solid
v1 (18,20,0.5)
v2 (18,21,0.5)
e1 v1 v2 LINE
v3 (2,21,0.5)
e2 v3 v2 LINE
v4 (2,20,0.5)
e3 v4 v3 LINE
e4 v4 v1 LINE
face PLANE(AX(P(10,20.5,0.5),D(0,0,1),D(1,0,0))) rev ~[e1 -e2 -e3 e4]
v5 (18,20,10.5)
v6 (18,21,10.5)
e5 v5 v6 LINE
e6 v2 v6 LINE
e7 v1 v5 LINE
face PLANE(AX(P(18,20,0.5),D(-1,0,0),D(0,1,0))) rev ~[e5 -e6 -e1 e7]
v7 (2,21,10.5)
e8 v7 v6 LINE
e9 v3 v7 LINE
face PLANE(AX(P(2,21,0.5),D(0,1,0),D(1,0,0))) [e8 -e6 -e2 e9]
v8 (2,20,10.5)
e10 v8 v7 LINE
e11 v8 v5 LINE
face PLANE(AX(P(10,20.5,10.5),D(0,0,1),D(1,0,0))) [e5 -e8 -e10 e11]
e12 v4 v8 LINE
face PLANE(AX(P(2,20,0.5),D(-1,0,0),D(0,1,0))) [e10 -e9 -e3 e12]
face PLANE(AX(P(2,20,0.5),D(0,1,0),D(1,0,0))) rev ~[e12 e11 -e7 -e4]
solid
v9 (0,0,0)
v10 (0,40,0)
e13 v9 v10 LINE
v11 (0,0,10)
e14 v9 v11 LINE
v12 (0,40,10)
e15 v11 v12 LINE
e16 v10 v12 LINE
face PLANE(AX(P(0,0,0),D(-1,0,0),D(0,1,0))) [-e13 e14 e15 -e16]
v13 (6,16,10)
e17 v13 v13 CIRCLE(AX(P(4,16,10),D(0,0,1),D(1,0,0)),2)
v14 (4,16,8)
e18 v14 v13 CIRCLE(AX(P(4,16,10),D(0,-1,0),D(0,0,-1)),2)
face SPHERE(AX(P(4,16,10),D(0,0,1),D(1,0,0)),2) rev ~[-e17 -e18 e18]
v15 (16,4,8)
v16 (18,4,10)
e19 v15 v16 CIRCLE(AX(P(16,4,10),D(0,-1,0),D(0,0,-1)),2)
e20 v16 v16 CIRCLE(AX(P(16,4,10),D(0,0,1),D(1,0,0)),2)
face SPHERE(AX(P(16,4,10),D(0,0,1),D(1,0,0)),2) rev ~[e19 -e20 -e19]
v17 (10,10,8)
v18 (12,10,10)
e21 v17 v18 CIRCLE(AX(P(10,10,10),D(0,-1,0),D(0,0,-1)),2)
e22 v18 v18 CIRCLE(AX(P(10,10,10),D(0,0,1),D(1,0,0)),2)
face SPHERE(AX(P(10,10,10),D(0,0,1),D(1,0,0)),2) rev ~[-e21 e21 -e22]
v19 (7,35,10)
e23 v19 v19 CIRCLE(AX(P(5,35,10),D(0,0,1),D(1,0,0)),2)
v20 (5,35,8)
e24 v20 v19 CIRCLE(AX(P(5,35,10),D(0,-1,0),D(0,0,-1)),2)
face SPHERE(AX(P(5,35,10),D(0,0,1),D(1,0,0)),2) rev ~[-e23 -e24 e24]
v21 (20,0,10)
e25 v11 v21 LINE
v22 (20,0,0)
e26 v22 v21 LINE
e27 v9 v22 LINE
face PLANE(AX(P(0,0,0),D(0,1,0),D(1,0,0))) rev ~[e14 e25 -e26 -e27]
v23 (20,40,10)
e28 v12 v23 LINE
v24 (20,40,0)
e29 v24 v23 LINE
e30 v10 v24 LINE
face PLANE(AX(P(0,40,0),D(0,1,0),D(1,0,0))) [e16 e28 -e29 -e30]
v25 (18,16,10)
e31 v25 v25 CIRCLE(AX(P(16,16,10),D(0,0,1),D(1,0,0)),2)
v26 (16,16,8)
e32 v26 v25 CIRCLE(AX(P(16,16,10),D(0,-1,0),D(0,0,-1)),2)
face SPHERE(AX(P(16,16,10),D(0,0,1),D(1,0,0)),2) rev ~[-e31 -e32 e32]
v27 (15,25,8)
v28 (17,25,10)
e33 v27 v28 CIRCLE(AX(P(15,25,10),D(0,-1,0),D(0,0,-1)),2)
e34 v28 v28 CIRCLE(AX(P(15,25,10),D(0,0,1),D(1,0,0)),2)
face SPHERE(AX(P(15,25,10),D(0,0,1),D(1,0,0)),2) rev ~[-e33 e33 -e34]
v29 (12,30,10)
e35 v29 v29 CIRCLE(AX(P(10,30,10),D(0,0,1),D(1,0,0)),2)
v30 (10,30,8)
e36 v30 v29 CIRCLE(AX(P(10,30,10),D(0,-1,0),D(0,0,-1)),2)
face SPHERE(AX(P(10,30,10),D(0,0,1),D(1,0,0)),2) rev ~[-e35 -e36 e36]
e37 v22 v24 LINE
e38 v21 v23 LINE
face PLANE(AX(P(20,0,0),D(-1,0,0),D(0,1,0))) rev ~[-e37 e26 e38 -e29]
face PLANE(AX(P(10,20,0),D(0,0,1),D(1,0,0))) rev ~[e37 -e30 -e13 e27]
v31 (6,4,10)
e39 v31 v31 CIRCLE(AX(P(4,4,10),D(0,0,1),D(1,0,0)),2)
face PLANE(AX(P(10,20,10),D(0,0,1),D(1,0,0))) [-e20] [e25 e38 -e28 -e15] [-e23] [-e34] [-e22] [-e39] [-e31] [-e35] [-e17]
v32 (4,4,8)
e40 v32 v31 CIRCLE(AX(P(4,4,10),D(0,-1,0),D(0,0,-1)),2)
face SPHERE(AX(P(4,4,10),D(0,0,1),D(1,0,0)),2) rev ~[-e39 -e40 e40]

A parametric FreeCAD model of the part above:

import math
import FreeCAD as App
import Part
import Sketcher
from FreeCAD import Vector
Q = App.Units.Quantity

doc = App.newDocument("Part")
body = doc.addObject("PartDesign::Body", "Body")

# Sketch on XY plane
sketch1 = body.newObject("Sketcher::SketchObject", "Sketch")
sketch1.AttachmentSupport = (doc.getObject("XY_Plane"), [""])
sketch1.MapMode = "FlatFace"
sketch1.AttachmentOffset = App.Placement(Vector(0, 0, 0.5), App.Rotation())
sketch1.addGeometry([
    Part.LineSegment(Vector(2, 21, 0), Vector(2, 20, 0)),
    Part.LineSegment(Vector(2, 20, 0), Vector(18, 20, 0)),
    Part.LineSegment(Vector(18, 20, 0), Vector(18, 21, 0)),
    Part.LineSegment(Vector(18, 21, 0), Vector(2, 21, 0)),
], False)
sketch1.addConstraint([
    Sketcher.Constraint("Coincident", 0, 2, 1, 1),
    Sketcher.Constraint("Coincident", 1, 2, 2, 1),
    Sketcher.Constraint("Coincident", 2, 2, 3, 1),
    Sketcher.Constraint("Coincident", 3, 2, 0, 1),
    Sketcher.Constraint("Vertical", 0),
    Sketcher.Constraint("Horizontal", 1),
    Sketcher.Constraint("Vertical", 2),
    Sketcher.Constraint("Horizontal", 3),
    Sketcher.Constraint("DistanceX", 1, 1, 1, 2, Q("16 mm")),
    Sketcher.Constraint("DistanceY", 0, 2, 0, 1, Q("1 mm")),
    Sketcher.Constraint("DistanceX", -1, 1, 0, 2, Q("2 mm")),
    Sketcher.Constraint("DistanceY", -1, 1, 0, 2, Q("20 mm")),
])
pad1 = body.newObject("PartDesign::Pad", "Pad")
pad1.Profile = sketch1
pad1.Length = 10
body2 = doc.addObject("PartDesign::Body", "Body001")

# Sketch on XZ plane
sketch2 = body2.newObject("Sketcher::SketchObject", "Sketch001")
sketch2.AttachmentSupport = (doc.getObject("XZ_Plane001"), [""])
sketch2.MapMode = "FlatFace"
sketch2.AttachmentOffset = App.Placement(Vector(0, 0, -25), App.Rotation())
sketch2.addGeometry([
    Part.ArcOfCircle(Part.Circle(Vector(15, 10, 0), Vector(0, 0, 1), 2), math.radians(-90), math.radians(90)),
    Part.LineSegment(Vector(15, 12, 0), Vector(15, 8, 0)),
], False)
sketch2.addGeometry(Part.LineSegment(Vector(15, 8, 0), Vector(15, 12, 0)), True)  # axis
sketch2.addConstraint([
    Sketcher.Constraint("Coincident", 0, 1, 1, 2),
    Sketcher.Constraint("Coincident", 1, 1, 0, 2),
    Sketcher.Constraint("Vertical", 1),
    Sketcher.Constraint("Vertical", 2),
    Sketcher.Constraint("Coincident", 2, 1, 0, 1),
    Sketcher.Constraint("Equal", 1, 2),
    Sketcher.Constraint("Radius", 0, Q("2 mm")),
    Sketcher.Constraint("DistanceX", -1, 1, 0, 3, Q("15 mm")),
    Sketcher.Constraint("DistanceY", -1, 1, 0, 3, Q("10 mm")),
    Sketcher.Constraint("DistanceX", -1, 1, 0, 1, Q("15 mm")),
])
revolution = body2.newObject("PartDesign::Revolution", "Revolution")
revolution.Profile = sketch2
revolution.ReferenceAxis = (sketch2, ["Axis0"])
revolution.Angle = 360
body3 = doc.addObject("PartDesign::Body", "Body002")

# Sketch on XZ plane
sketch3 = body3.newObject("Sketcher::SketchObject", "Sketch002")
sketch3.AttachmentSupport = (doc.getObject("XZ_Plane002"), [""])
sketch3.MapMode = "FlatFace"
sketch3.AttachmentOffset = App.Placement(Vector(0, 0, -30), App.Rotation())
sketch3.addGeometry([
    Part.ArcOfCircle(Part.Circle(Vector(10, 10, 0), Vector(0, 0, 1), 2), math.radians(-90), math.radians(90)),
    Part.LineSegment(Vector(10, 12, 0), Vector(10, 8, 0)),
], False)
sketch3.addGeometry(Part.LineSegment(Vector(10, 8, 0), Vector(10, 12, 0)), True)  # axis
sketch3.addConstraint([
    Sketcher.Constraint("Coincident", 0, 1, 1, 2),
    Sketcher.Constraint("Coincident", 1, 1, 0, 2),
    Sketcher.Constraint("Vertical", 1),
    Sketcher.Constraint("Vertical", 2),
    Sketcher.Constraint("Coincident", 2, 1, 0, 1),
    Sketcher.Constraint("Equal", 1, 2),
    Sketcher.Constraint("Radius", 0, Q("2 mm")),
    Sketcher.Constraint("DistanceX", -1, 1, 0, 3, Q("10 mm")),
    Sketcher.Constraint("DistanceY", -1, 1, 0, 3, Q("10 mm")),
    Sketcher.Constraint("DistanceX", -1, 1, 0, 1, Q("10 mm")),
])
revolution2 = body3.newObject("PartDesign::Revolution", "Revolution001")
revolution2.Profile = sketch3
revolution2.ReferenceAxis = (sketch3, ["Axis0"])
revolution2.Angle = 360
body4 = doc.addObject("PartDesign::Body", "Body003")
body4.AllowCompound = True

# Sketch on XZ plane
sketch4 = body4.newObject("Sketcher::SketchObject", "Sketch003")
sketch4.AttachmentSupport = (doc.getObject("XZ_Plane003"), [""])
sketch4.MapMode = "FlatFace"
sketch4.AttachmentOffset = App.Placement(Vector(0, 0, -35), App.Rotation())
sketch4.addGeometry([
    Part.ArcOfCircle(Part.Circle(Vector(5, 10, 0), Vector(0, 0, 1), 2), math.radians(-90), math.radians(90)),
    Part.LineSegment(Vector(5, 12, 0), Vector(5, 8, 0)),
], False)
sketch4.addGeometry(Part.LineSegment(Vector(5, 8, 0), Vector(5, 12, 0)), True)  # axis
sketch4.addConstraint([
    Sketcher.Constraint("Coincident", 0, 1, 1, 2),
    Sketcher.Constraint("Coincident", 1, 1, 0, 2),
    Sketcher.Constraint("Vertical", 1),
    Sketcher.Constraint("Vertical", 2),
    Sketcher.Constraint("Coincident", 2, 1, 0, 1),
    Sketcher.Constraint("Equal", 1, 2),
    Sketcher.Constraint("Radius", 0, Q("2 mm")),
    Sketcher.Constraint("DistanceX", -1, 1, 0, 3, Q("5 mm")),
    Sketcher.Constraint("DistanceY", -1, 1, 0, 3, Q("10 mm")),
    Sketcher.Constraint("DistanceX", -1, 1, 0, 1, Q("5 mm")),
])
revolution3 = body4.newObject("PartDesign::Revolution", "Revolution002")
revolution3.Profile = sketch4
revolution3.ReferenceAxis = (sketch4, ["Axis0"])
revolution3.Angle = 360
doc.recompute()

boolean = body4.newObject("PartDesign::Boolean", "Boolean")
boolean.Type = "Fuse"
boolean.addObjects([body2])
doc.recompute()

boolean2 = body4.newObject("PartDesign::Boolean", "Boolean001")
boolean2.Type = "Fuse"
boolean2.addObjects([body3])
body5 = doc.addObject("PartDesign::Body", "Body004")

# Sketch on XZ plane
sketch5 = body5.newObject("Sketcher::SketchObject", "Sketch004")
sketch5.AttachmentSupport = (doc.getObject("XZ_Plane004"), [""])
sketch5.MapMode = "FlatFace"
sketch5.AttachmentOffset = App.Placement(Vector(0, 0, -4), App.Rotation())
sketch5.addGeometry([
    Part.ArcOfCircle(Part.Circle(Vector(16, 10, 0), Vector(0, 0, 1), 2), math.radians(-90), math.radians(90)),
    Part.LineSegment(Vector(16, 12, 0), Vector(16, 8, 0)),
], False)
sketch5.addGeometry(Part.LineSegment(Vector(16, 8, 0), Vector(16, 12, 0)), True)  # axis
sketch5.addConstraint([
    Sketcher.Constraint("Coincident", 0, 1, 1, 2),
    Sketcher.Constraint("Coincident", 1, 1, 0, 2),
    Sketcher.Constraint("Vertical", 1),
    Sketcher.Constraint("Vertical", 2),
    Sketcher.Constraint("Coincident", 2, 1, 0, 1),
    Sketcher.Constraint("Equal", 1, 2),
    Sketcher.Constraint("Radius", 0, Q("2 mm")),
    Sketcher.Constraint("DistanceX", -1, 1, 0, 3, Q("16 mm")),
    Sketcher.Constraint("DistanceY", -1, 1, 0, 3, Q("10 mm")),
    Sketcher.Constraint("DistanceX", -1, 1, 0, 1, Q("16 mm")),
])
revolution4 = body5.newObject("PartDesign::Revolution", "Revolution003")
revolution4.Profile = sketch5
revolution4.ReferenceAxis = (sketch5, ["Axis0"])
revolution4.Angle = 360
body6 = doc.addObject("PartDesign::Body", "Body005")

# Sketch on XZ plane
sketch6 = body6.newObject("Sketcher::SketchObject", "Sketch005")
sketch6.AttachmentSupport = (doc.getObject("XZ_Plane005"), [""])
sketch6.MapMode = "FlatFace"
sketch6.AttachmentOffset = App.Placement(Vector(0, 0, -16), App.Rotation())
sketch6.addGeometry([
    Part.ArcOfCircle(Part.Circle(Vector(4, 10, 0), Vector(0, 0, 1), 2), math.radians(-90), math.radians(90)),
    Part.LineSegment(Vector(4, 12, 0), Vector(4, 8, 0)),
], False)
sketch6.addGeometry(Part.LineSegment(Vector(4, 8, 0), Vector(4, 12, 0)), True)  # axis
sketch6.addConstraint([
    Sketcher.Constraint("Coincident", 0, 1, 1, 2),
    Sketcher.Constraint("Coincident", 1, 1, 0, 2),
    Sketcher.Constraint("Vertical", 1),
    Sketcher.Constraint("Vertical", 2),
    Sketcher.Constraint("Coincident", 2, 1, 0, 1),
    Sketcher.Constraint("Equal", 1, 2),
    Sketcher.Constraint("Radius", 0, Q("2 mm")),
    Sketcher.Constraint("DistanceX", -1, 1, 0, 3, Q("4 mm")),
    Sketcher.Constraint("DistanceY", -1, 1, 0, 3, Q("10 mm")),
    Sketcher.Constraint("DistanceX", -1, 1, 0, 1, Q("4 mm")),
])
revolution5 = body6.newObject("PartDesign::Revolution", "Revolution004")
revolution5.Profile = sketch6
revolution5.ReferenceAxis = (sketch6, ["Axis0"])
revolution5.Angle = 360
body7 = doc.addObject("PartDesign::Body", "Body006")

# Sketch on XZ plane
sketch7 = body7.newObject("Sketcher::SketchObject", "Sketch006")
sketch7.AttachmentSupport = (doc.getObject("XZ_Plane006"), [""])
sketch7.MapMode = "FlatFace"
sketch7.AttachmentOffset = App.Placement(Vector(0, 0, -16), App.Rotation())
sketch7.addGeometry([
    Part.ArcOfCircle(Part.Circle(Vector(16, 10, 0), Vector(0, 0, 1), 2), math.radians(-90), math.radians(90)),
    Part.LineSegment(Vector(16, 12, 0), Vector(16, 8, 0)),
], False)
sketch7.addGeometry(Part.LineSegment(Vector(16, 8, 0), Vector(16, 12, 0)), True)  # axis
sketch7.addConstraint([
    Sketcher.Constraint("Coincident", 0, 1, 1, 2),
    Sketcher.Constraint("Coincident", 1, 1, 0, 2),
    Sketcher.Constraint("Vertical", 1),
    Sketcher.Constraint("Vertical", 2),
    Sketcher.Constraint("Coincident", 2, 1, 0, 1),
    Sketcher.Constraint("Equal", 1, 2),
    Sketcher.Constraint("Radius", 0, Q("2 mm")),
    Sketcher.Constraint("DistanceX", -1, 1, 0, 3, Q("16 mm")),
    Sketcher.Constraint("DistanceY", -1, 1, 0, 3, Q("10 mm")),
    Sketcher.Constraint("DistanceX", -1, 1, 0, 1, Q("16 mm")),
])
revolution6 = body7.newObject("PartDesign::Revolution", "Revolution005")
revolution6.Profile = sketch7
revolution6.ReferenceAxis = (sketch7, ["Axis0"])
revolution6.Angle = 360
body8 = doc.addObject("PartDesign::Body", "Body007")

# Sketch on XZ plane
sketch8 = body8.newObject("Sketcher::SketchObject", "Sketch007")
sketch8.AttachmentSupport = (doc.getObject("XZ_Plane007"), [""])
sketch8.MapMode = "FlatFace"
sketch8.AttachmentOffset = App.Placement(Vector(0, 0, -10), App.Rotation())
sketch8.addGeometry([
    Part.ArcOfCircle(Part.Circle(Vector(10, 10, 0), Vector(0, 0, 1), 2), math.radians(-90), math.radians(90)),
    Part.LineSegment(Vector(10, 12, 0), Vector(10, 8, 0)),
], False)
sketch8.addGeometry(Part.LineSegment(Vector(10, 8, 0), Vector(10, 12, 0)), True)  # axis
sketch8.addConstraint([
    Sketcher.Constraint("Coincident", 0, 1, 1, 2),
    Sketcher.Constraint("Coincident", 1, 1, 0, 2),
    Sketcher.Constraint("Vertical", 1),
    Sketcher.Constraint("Vertical", 2),
    Sketcher.Constraint("Coincident", 2, 1, 0, 1),
    Sketcher.Constraint("Equal", 1, 2),
    Sketcher.Constraint("Radius", 0, Q("2 mm")),
    Sketcher.Constraint("DistanceX", -1, 1, 0, 3, Q("10 mm")),
    Sketcher.Constraint("DistanceY", -1, 1, 0, 3, Q("10 mm")),
    Sketcher.Constraint("DistanceX", -1, 1, 0, 1, Q("10 mm")),
])
revolution7 = body8.newObject("PartDesign::Revolution", "Revolution006")
revolution7.Profile = sketch8
revolution7.ReferenceAxis = (sketch8, ["Axis0"])
revolution7.Angle = 360
body9 = doc.addObject("PartDesign::Body", "Body008")
body9.AllowCompound = True

# Sketch on XZ plane
sketch9 = body9.newObject("Sketcher::SketchObject", "Sketch008")
sketch9.AttachmentSupport = (doc.getObject("XZ_Plane008"), [""])
sketch9.MapMode = "FlatFace"
sketch9.AttachmentOffset = App.Placement(Vector(0, 0, -4), App.Rotation())
sketch9.addGeometry([
    Part.ArcOfCircle(Part.Circle(Vector(4, 10, 0), Vector(0, 0, 1), 2), math.radians(-90), math.radians(90)),
    Part.LineSegment(Vector(4, 12, 0), Vector(4, 8, 0)),
], False)
sketch9.addGeometry(Part.LineSegment(Vector(4, 8, 0), Vector(4, 12, 0)), True)  # axis
sketch9.addConstraint([
    Sketcher.Constraint("Coincident", 0, 1, 1, 2),
    Sketcher.Constraint("Coincident", 1, 1, 0, 2),
    Sketcher.Constraint("Vertical", 1),
    Sketcher.Constraint("Vertical", 2),
    Sketcher.Constraint("Coincident", 2, 1, 0, 1),
    Sketcher.Constraint("Equal", 1, 2),
    Sketcher.Constraint("Radius", 0, Q("2 mm")),
    Sketcher.Constraint("DistanceX", -1, 1, 0, 3, Q("4 mm")),
    Sketcher.Constraint("DistanceY", -1, 1, 0, 3, Q("10 mm")),
    Sketcher.Constraint("DistanceX", -1, 1, 0, 1, Q("4 mm")),
])
revolution8 = body9.newObject("PartDesign::Revolution", "Revolution007")
revolution8.Profile = sketch9
revolution8.ReferenceAxis = (sketch9, ["Axis0"])
revolution8.Angle = 360
doc.recompute()

boolean3 = body9.newObject("PartDesign::Boolean", "Boolean002")
boolean3.Type = "Fuse"
boolean3.addObjects([body5])
doc.recompute()

boolean4 = body9.newObject("PartDesign::Boolean", "Boolean003")
boolean4.Type = "Fuse"
boolean4.addObjects([body6])
doc.recompute()

boolean5 = body9.newObject("PartDesign::Boolean", "Boolean004")
boolean5.Type = "Fuse"
boolean5.addObjects([body7])
doc.recompute()

boolean6 = body9.newObject("PartDesign::Boolean", "Boolean005")
boolean6.Type = "Fuse"
boolean6.addObjects([body8])
body10 = doc.addObject("PartDesign::Body", "Body009")

# Sketch on XY plane
sketch10 = body10.newObject("Sketcher::SketchObject", "Sketch009")
sketch10.AttachmentSupport = (doc.getObject("XY_Plane009"), [""])
sketch10.MapMode = "FlatFace"
sketch10.addGeometry([
    Part.LineSegment(Vector(0, 40, 0), Vector(0, 0, 0)),
    Part.LineSegment(Vector(0, 0, 0), Vector(20, 0, 0)),
    Part.LineSegment(Vector(20, 0, 0), Vector(20, 40, 0)),
    Part.LineSegment(Vector(20, 40, 0), Vector(0, 40, 0)),
], False)
sketch10.addConstraint([
    Sketcher.Constraint("Coincident", 0, 2, 1, 1),
    Sketcher.Constraint("Coincident", 1, 2, 2, 1),
    Sketcher.Constraint("Coincident", 2, 2, 3, 1),
    Sketcher.Constraint("Coincident", 3, 2, 0, 1),
    Sketcher.Constraint("Vertical", 0),
    Sketcher.Constraint("Horizontal", 1),
    Sketcher.Constraint("Vertical", 2),
    Sketcher.Constraint("Horizontal", 3),
    Sketcher.Constraint("Coincident", 0, 2, -1, 1),
    Sketcher.Constraint("DistanceX", 1, 1, 1, 2, Q("20 mm")),
    Sketcher.Constraint("DistanceY", 0, 2, 0, 1, Q("40 mm")),
])
pad2 = body10.newObject("PartDesign::Pad", "Pad001")
pad2.Profile = sketch10
pad2.Length = 10
doc.recompute()

boolean7 = body10.newObject("PartDesign::Boolean", "Boolean006")
boolean7.Type = "Cut"
boolean7.addObjects([body9])
doc.recompute()

boolean8 = body10.newObject("PartDesign::Boolean", "Boolean007")
boolean8.Type = "Cut"
boolean8.addObjects([body4])

doc.recompute()
